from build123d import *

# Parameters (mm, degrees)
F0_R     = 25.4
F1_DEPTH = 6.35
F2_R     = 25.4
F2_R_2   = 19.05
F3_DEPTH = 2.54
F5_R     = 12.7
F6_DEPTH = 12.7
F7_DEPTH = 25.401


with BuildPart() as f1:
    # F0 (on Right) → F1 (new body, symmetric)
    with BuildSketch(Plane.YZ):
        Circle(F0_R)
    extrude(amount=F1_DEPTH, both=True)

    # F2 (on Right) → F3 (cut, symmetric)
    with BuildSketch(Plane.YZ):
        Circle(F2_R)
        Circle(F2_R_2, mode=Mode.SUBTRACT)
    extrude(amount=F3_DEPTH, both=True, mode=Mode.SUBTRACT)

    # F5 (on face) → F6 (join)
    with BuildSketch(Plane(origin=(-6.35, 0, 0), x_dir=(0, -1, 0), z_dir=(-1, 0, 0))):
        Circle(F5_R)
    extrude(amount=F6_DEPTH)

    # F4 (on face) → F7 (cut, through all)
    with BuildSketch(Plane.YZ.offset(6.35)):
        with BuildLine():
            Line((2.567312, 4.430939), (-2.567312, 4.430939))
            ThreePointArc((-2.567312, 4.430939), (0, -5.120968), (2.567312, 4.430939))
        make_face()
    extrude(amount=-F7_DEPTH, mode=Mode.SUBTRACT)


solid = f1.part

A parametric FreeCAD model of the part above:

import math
import FreeCAD as App
import Part
import Sketcher

V = App.Vector
Q = App.Units.Quantity

doc = App.newDocument("Part")
body = doc.addObject("PartDesign::Body", "Body")

# Sketch on YZ plane
sketch1 = doc.addObject("Sketcher::SketchObject", "Sketch")
body.addObject(sketch1)
sketch1.AttachmentSupport = (doc.YZ_Plane, [""])
sketch1.MapMode = "FlatFace"
sketch1.addGeometry(Part.Circle(V(0, 0, 0), V(0, 0, 1), 25), False)
sketch1.addConstraint([
    Sketcher.Constraint("Coincident", 0, 3, -1, 1),
    Sketcher.Constraint("Diameter", 0, Q("2 in")),
])
pad1 = doc.addObject("PartDesign::Pad", "Pad")
body.addObject(pad1)
pad1.Profile = sketch1
pad1.Length = Q("0.5 in")
pad1.Midplane = True

# Sketch on YZ plane
sketch2 = doc.addObject("Sketcher::SketchObject", "Sketch001")
body.addObject(sketch2)
sketch2.AttachmentSupport = (doc.YZ_Plane, [""])
sketch2.MapMode = "FlatFace"
sketch2.addGeometry([
    Part.Circle(V(0, 0, 0), V(0, 0, 1), 25),
    Part.Circle(V(0, 0, 0), V(0, 0, 1), 19),
], False)
sketch2.addConstraint([
    Sketcher.Constraint("Coincident", 0, 3, -1, 1),
    Sketcher.Constraint("Coincident", 1, 3, -1, 1),
    Sketcher.Constraint("Diameter", 0, Q("2 in")),
    Sketcher.Constraint("Diameter", 1, Q("1.5 in")),
])
pocket1 = doc.addObject("PartDesign::Pocket", "Pocket")
body.addObject(pocket1)
pocket1.Profile = sketch2
pocket1.Length = Q("0.2 in")
pocket1.Midplane = True

# Sketch on YZ plane
sketch3 = doc.addObject("Sketcher::SketchObject", "Sketch002")
body.addObject(sketch3)
sketch3.AttachmentSupport = (doc.YZ_Plane, [""])
sketch3.MapMode = "FlatFace"
sketch3.AttachmentOffset = App.Placement(V(0, 0, -0.25 * 25.4), App.Rotation())
sketch3.addGeometry(Part.Circle(V(0, 0, 0), V(0, 0, 1), 13), False)
sketch3.addConstraint([
    Sketcher.Constraint("Coincident", 0, 3, -1, 1),
    Sketcher.Constraint("Diameter", 0, Q("1 in")),
])
pad2 = doc.addObject("PartDesign::Pad", "Pad001")
body.addObject(pad2)
pad2.Profile = sketch3
pad2.Length = Q("0.5 in")
pad2.Reversed = True

# Sketch on YZ plane
sketch4 = doc.addObject("Sketcher::SketchObject", "Sketch003")
body.addObject(sketch4)
sketch4.AttachmentSupport = (doc.YZ_Plane, [""])
sketch4.MapMode = "FlatFace"
sketch4.AttachmentOffset = App.Placement(V(0, 0, 0.25 * 25.4), App.Rotation())
sketch4.addGeometry([
    Part.LineSegment(V(3, 4, 0), V(-3, 4, 0)),
    Part.ArcOfCircle(Part.Circle(V(0, 0, 0), V(0, 0, 1), 5), math.radians(120), math.radians(420)),
], False)
sketch4.addConstraint([
    Sketcher.Constraint("Coincident", 0, 1, 1, 2),
    Sketcher.Constraint("Coincident", 1, 1, 0, 2),
    Sketcher.Constraint("Horizontal", 0),
    Sketcher.Constraint("Coincident", 1, 3, -1, 1),
    Sketcher.Constraint("Radius", 1, 5.120968),
    Sketcher.Constraint("DistanceX", 0, 2, 0, 1, 5.134624),
])
pocket2 = doc.addObject("PartDesign::Pocket", "Pocket001")
body.addObject(pocket2)
pocket2.Profile = sketch4
pocket2.Type = "ThroughAll"

doc.recompute()
